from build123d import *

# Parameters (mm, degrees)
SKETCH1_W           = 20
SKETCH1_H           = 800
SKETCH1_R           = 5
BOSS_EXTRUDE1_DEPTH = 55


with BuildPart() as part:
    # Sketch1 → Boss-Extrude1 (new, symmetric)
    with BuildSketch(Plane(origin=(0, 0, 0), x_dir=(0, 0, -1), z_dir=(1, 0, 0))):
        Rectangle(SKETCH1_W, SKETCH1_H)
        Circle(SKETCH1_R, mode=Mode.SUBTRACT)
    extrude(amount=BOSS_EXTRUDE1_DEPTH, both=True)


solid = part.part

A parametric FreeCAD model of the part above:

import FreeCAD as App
import Part
import Sketcher

V = App.Vector
Q = App.Units.Quantity

doc = App.newDocument("Part")
body = doc.addObject("PartDesign::Body", "Body")

sketch1 = body.newObject("Sketcher::SketchObject", "Sketch")
sketch1.AttachmentSupport = (doc.getObject("YZ_Plane"), [""])
sketch1.MapMode = "FlatFace"
sketch1.addGeometry([
    Part.LineSegment(V(400, 10, 0), V(-400, 10, 0)),
    Part.LineSegment(V(-400, 10, 0), V(-400, -10, 0)),
    Part.LineSegment(V(-400, -10, 0), V(400, -10, 0)),
    Part.LineSegment(V(400, -10, 0), V(400, 10, 0)),
    Part.Circle(V(0, 0, 0), V(0, 0, 1), 5),
], False)
sketch1.addConstraint([
    Sketcher.Constraint("Coincident", 0, 2, 1, 1),
    Sketcher.Constraint("Coincident", 1, 2, 2, 1),
    Sketcher.Constraint("Coincident", 2, 2, 3, 1),
    Sketcher.Constraint("Coincident", 3, 2, 0, 1),
    Sketcher.Constraint("Horizontal", 0),
    Sketcher.Constraint("Vertical", 1),
    Sketcher.Constraint("Horizontal", 2),
    Sketcher.Constraint("Vertical", 3),
    Sketcher.Constraint("Coincident", 4, 3, -1, 1),
    Sketcher.Constraint("Symmetric", 0, 2, 2, 2, -1, 1),
    Sketcher.Constraint("Diameter", 4, Q("10 mm")),
    Sketcher.Constraint("DistanceX", 0, 2, 0, 1, Q("800 mm")),
    Sketcher.Constraint("DistanceY", 1, 2, 1, 1, Q("20 mm")),
])
pad1 = body.newObject("PartDesign::Pad", "Pad")
pad1.Profile = sketch1
pad1.Length = 110
pad1.Midplane = True

doc.recompute()
